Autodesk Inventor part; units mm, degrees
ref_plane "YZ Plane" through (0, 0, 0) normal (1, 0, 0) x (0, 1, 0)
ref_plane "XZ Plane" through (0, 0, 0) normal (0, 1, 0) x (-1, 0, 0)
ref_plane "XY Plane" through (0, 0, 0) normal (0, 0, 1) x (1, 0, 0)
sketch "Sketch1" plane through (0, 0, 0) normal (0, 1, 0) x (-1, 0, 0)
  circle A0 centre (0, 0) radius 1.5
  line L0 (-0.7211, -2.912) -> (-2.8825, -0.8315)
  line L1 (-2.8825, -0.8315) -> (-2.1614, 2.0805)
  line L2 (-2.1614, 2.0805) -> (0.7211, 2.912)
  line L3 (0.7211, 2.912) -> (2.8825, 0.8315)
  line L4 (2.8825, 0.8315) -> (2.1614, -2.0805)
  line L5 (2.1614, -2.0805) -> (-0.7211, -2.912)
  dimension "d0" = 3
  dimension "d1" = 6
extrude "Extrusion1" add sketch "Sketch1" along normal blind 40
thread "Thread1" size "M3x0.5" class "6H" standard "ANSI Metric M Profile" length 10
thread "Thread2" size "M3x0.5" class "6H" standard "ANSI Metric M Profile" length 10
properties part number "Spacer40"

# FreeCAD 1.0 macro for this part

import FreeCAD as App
import Part
import Sketcher

V = App.Vector
Q = App.Units.Quantity

doc = App.newDocument("Part")
body = doc.addObject("PartDesign::Body", "Body")

# Sketch on XZ plane
sketch1 = body.newObject("Sketcher::SketchObject", "Sketch")
sketch1.AttachmentSupport = (doc.getObject("XZ_Plane"), [""])
sketch1.MapMode = "FlatFace"
sketch1.addGeometry([
    Part.LineSegment(V(2.8825, -0.8315, 0), V(0.7211, -2.912, 0)),  # 0
    Part.LineSegment(V(0.7211, -2.912, 0), V(-2.1614, -2.0805, 0)),  # 1
    Part.LineSegment(V(-2.1614, -2.0805, 0), V(-2.8825, 0.8315, 0)),  # 2
    Part.LineSegment(V(-2.8825, 0.8315, 0), V(-0.7211, 2.912, 0)),  # 3
    Part.LineSegment(V(-0.7211, 2.912, 0), V(2.1614, 2.0805, 0)),  # 4
    Part.LineSegment(V(2.1614, 2.0805, 0), V(2.8825, -0.8315, 0)),  # 5
    Part.Circle(V(0, 0, 0), V(0, 0, 1), 1.5),  # 6
], False)
sketch1.addConstraint([
    Sketcher.Constraint("Coincident", 0, 2, 1, 1),
    Sketcher.Constraint("Coincident", 1, 2, 2, 1),
    Sketcher.Constraint("Coincident", 2, 2, 3, 1),
    Sketcher.Constraint("Coincident", 3, 2, 4, 1),
    Sketcher.Constraint("Coincident", 4, 2, 5, 1),
    Sketcher.Constraint("Coincident", 5, 2, 0, 1),
    Sketcher.Constraint("Coincident", 6, 3, -1, 1),
    Sketcher.Constraint("Symmetric", 0, 2, 3, 2, -1, 1),
    Sketcher.Constraint("Symmetric", 1, 2, 4, 2, -1, 1),
    Sketcher.Constraint("Symmetric", 2, 2, 5, 2, -1, 1),
    Sketcher.Constraint("Equal", 0, 1),
    Sketcher.Constraint("Equal", 1, 2),
    Sketcher.Constraint("Diameter", 6, Q("3 mm")),
    Sketcher.Constraint("Distance", 0, Q("3 mm")),
    Sketcher.Constraint("Angle", 1, Q("163.909 deg")),
    Sketcher.Constraint("DistanceX", -1, 1, 0, 2, Q("0.721 mm")),
    Sketcher.Constraint("DistanceY", 0, 2, -1, 1, Q("2.912 mm")),
])
pad1 = body.newObject("PartDesign::Pad", "Pad")
pad1.Profile = sketch1
pad1.Length = 40
pad1.Reversed = True

doc.recompute()
